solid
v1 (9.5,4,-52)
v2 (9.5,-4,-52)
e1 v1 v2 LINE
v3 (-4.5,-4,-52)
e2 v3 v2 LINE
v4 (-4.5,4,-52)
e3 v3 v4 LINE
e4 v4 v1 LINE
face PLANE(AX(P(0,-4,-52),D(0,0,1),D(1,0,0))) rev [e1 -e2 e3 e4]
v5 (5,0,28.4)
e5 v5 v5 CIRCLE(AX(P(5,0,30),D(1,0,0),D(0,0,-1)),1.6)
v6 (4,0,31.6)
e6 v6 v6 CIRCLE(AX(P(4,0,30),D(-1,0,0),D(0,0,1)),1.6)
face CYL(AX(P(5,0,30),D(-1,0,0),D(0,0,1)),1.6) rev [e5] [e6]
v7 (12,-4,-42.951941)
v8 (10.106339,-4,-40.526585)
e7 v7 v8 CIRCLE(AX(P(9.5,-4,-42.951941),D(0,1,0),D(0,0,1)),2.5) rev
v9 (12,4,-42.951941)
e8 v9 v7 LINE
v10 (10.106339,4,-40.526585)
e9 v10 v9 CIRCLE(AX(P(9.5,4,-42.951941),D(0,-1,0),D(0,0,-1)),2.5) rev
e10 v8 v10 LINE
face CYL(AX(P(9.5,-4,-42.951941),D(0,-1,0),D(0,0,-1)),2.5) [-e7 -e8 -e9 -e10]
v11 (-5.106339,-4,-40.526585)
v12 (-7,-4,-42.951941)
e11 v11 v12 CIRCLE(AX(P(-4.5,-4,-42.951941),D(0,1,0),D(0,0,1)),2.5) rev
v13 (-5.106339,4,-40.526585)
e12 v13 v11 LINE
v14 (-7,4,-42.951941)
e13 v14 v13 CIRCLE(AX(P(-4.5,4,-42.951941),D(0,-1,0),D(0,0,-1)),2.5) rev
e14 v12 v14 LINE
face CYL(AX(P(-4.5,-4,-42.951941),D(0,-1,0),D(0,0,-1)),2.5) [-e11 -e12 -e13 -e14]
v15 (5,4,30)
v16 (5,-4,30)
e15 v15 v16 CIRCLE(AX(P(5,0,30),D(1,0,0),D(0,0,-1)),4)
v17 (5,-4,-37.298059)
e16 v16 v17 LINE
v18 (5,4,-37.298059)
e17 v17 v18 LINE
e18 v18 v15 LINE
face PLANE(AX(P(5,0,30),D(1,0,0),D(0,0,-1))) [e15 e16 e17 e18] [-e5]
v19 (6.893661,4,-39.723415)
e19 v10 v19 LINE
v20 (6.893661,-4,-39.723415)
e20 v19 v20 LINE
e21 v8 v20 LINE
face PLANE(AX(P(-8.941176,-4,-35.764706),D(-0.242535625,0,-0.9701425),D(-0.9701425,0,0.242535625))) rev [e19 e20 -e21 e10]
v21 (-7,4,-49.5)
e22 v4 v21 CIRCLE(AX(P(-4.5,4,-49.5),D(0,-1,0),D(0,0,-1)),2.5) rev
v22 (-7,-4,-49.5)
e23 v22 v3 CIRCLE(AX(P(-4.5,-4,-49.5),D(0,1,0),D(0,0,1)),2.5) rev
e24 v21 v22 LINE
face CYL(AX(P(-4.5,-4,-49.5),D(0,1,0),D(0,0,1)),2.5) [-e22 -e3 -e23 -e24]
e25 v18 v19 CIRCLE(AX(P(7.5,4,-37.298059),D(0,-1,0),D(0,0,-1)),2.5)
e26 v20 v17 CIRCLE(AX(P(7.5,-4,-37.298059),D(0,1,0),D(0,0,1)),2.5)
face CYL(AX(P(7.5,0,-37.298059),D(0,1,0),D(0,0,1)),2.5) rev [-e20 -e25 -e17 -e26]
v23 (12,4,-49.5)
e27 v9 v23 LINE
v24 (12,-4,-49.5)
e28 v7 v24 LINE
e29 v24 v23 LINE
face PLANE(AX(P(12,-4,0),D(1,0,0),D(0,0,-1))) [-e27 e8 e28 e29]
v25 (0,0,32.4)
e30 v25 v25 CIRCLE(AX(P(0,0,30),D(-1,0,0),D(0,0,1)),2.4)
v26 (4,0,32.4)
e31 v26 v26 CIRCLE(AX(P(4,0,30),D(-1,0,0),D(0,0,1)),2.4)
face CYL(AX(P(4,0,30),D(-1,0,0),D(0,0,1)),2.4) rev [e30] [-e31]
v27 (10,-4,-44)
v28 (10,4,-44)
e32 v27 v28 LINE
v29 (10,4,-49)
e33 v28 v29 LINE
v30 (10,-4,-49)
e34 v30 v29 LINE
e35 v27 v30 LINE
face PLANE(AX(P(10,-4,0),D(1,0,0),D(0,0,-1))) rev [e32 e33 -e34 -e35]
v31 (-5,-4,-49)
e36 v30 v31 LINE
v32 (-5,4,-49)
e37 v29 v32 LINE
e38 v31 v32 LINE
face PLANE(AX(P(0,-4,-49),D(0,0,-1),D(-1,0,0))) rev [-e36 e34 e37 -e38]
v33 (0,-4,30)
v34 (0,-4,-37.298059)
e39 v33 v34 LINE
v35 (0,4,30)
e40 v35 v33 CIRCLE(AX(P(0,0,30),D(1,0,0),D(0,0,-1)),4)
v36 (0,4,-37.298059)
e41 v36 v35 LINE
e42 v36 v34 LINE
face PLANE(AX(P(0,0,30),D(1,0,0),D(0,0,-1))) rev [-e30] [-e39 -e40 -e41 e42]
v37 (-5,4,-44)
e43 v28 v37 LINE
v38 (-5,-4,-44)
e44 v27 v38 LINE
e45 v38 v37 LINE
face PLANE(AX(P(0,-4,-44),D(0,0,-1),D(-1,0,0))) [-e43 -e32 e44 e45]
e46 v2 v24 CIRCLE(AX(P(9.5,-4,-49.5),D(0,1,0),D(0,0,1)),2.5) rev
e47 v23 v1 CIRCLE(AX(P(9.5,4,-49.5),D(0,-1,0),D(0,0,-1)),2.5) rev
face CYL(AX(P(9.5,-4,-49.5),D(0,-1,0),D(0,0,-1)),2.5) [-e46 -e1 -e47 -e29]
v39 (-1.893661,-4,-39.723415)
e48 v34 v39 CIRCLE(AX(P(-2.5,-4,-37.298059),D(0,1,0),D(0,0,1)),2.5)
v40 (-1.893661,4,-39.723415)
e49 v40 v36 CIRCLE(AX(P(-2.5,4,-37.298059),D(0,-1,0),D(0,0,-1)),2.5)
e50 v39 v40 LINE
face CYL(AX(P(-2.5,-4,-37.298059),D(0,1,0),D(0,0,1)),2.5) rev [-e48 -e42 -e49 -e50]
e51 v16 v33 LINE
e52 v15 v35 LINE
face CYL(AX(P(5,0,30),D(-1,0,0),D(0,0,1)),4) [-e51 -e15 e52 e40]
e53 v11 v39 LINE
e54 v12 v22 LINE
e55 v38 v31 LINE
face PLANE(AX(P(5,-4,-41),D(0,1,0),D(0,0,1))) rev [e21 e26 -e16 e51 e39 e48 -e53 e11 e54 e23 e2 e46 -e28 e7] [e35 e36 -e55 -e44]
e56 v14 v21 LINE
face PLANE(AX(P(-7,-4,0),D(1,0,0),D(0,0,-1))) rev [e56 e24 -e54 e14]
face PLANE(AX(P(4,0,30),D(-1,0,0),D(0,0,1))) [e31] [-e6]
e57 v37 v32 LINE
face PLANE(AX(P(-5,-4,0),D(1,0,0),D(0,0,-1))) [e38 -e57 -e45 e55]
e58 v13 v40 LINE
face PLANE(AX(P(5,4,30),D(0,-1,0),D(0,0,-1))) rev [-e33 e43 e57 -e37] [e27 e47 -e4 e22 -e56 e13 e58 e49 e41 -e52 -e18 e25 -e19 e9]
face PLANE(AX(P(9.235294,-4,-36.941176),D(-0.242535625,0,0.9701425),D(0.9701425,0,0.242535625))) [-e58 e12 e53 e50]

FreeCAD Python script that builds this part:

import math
import FreeCAD as App
import Part
import Sketcher

V = App.Vector


def edges_at(feature, points):
    """Names of the edges that pass closest to the given points."""
    edges = feature.Shape.Edges
    near = lambda p: min(range(len(edges)), key=lambda i: edges[i].distToShape(Part.Vertex(*p))[0])
    return sorted({f"Edge{near(p) + 1}" for p in points})


def add_polygon(sketch, points):
    """Adds a closed chain of lines whose ends are joined by coincident constraints."""
    first, n = sketch.GeometryCount, len(points)
    for a, b in zip(points, points[1:] + points[:1]):
        sketch.addGeometry(Part.LineSegment(App.Vector(*a, 0), App.Vector(*b, 0)), False)
    for i in range(n):
        sketch.addConstraint(Sketcher.Constraint("Coincident", first + i, 2, first + (i + 1) % n, 1))

doc = App.newDocument("Part")
body = doc.addObject("PartDesign::Body", "Body")

# Sketch on YZ plane
sketch1 = body.newObject("Sketcher::SketchObject", "Sketch")
sketch1.AttachmentSupport = (doc.getObject("YZ_Plane"), [""])
sketch1.MapMode = "FlatFace"
sketch1.addGeometry(Part.LineSegment(V(4, -41, 0), V(4, 30, 0)), False)
sketch1.addGeometry(Part.ArcOfCircle(Part.Circle(V(0, 30, 0), V(0, 0, 1), 4), math.radians(0), math.radians(180)), False)
sketch1.addGeometry(Part.LineSegment(V(-4, 30, 0), V(-4, -41, 0)), False)
sketch1.addGeometry(Part.LineSegment(V(-4, -41, 0), V(4, -41, 0)), False)
sketch1.addGeometry(Part.Circle(V(0, 30, 0), V(0, 0, 1), 1.6), False)
sketch1.addConstraint(Sketcher.Constraint("Tangent", 0, 2, 1, 1))
sketch1.addConstraint(Sketcher.Constraint("Tangent", 1, 2, 2, 1))
sketch1.addConstraint(Sketcher.Constraint("Coincident", 2, 2, 3, 1))
sketch1.addConstraint(Sketcher.Constraint("Coincident", 3, 2, 0, 1))
sketch1.addConstraint(Sketcher.Constraint("Vertical", 0))
sketch1.addConstraint(Sketcher.Constraint("Vertical", 2))
sketch1.addConstraint(Sketcher.Constraint("Horizontal", 3))
sketch1.addConstraint(Sketcher.Constraint("Coincident", 4, 3, 1, 3))
sketch1.addConstraint(Sketcher.Constraint("PointOnObject", 1, 3, -2))
sketch1.addConstraint(Sketcher.Constraint("Radius", 1, 4.0))
sketch1.addConstraint(Sketcher.Constraint("Diameter", 4, 3.2))
sketch1.addConstraint(Sketcher.Constraint("DistanceY", 0, 1, 0, 2, 71.0))
sketch1.addConstraint(Sketcher.Constraint("DistanceY", -1, 1, 1, 3, 30.0))
pad1 = body.newObject("PartDesign::Pad", "Pad")
pad1.Profile = sketch1
pad1.Length = 5

# Sketch on XZ plane
sketch2 = body.newObject("Sketcher::SketchObject", "Sketch001")
sketch2.AttachmentSupport = (doc.getObject("XZ_Plane"), [""])
sketch2.MapMode = "FlatFace"
sketch2.AttachmentOffset = App.Placement(V(0, 0, -4), App.Rotation())
add_polygon(sketch2, [(12, -41), (12, -52), (-7, -52), (-7, -41), (0, -39.2), (0, -41), (5, -41), (5, -39.2)])  # lines 0-7
add_polygon(sketch2, [(10, -44), (-5, -44), (-5, -49), (10, -49)])  # lines 8-11
sketch2.addConstraint(Sketcher.Constraint("Vertical", 0))
sketch2.addConstraint(Sketcher.Constraint("Horizontal", 1))
sketch2.addConstraint(Sketcher.Constraint("Vertical", 2))
sketch2.addConstraint(Sketcher.Constraint("Vertical", 4))
sketch2.addConstraint(Sketcher.Constraint("Horizontal", 5))
sketch2.addConstraint(Sketcher.Constraint("Vertical", 6))
sketch2.addConstraint(Sketcher.Constraint("Horizontal", 8))
sketch2.addConstraint(Sketcher.Constraint("Vertical", 9))
sketch2.addConstraint(Sketcher.Constraint("Horizontal", 10))
sketch2.addConstraint(Sketcher.Constraint("Vertical", 11))
sketch2.addConstraint(Sketcher.Constraint("PointOnObject", 3, 2, -2))
sketch2.addConstraint(Sketcher.Constraint("Horizontal", 2, 2, 4, 2))
sketch2.addConstraint(Sketcher.Constraint("Horizontal", 3, 2, 6, 2))
sketch2.addConstraint(Sketcher.Constraint("Horizontal", 5, 2, 7, 2))
sketch2.addConstraint(Sketcher.Constraint("Equal", 5, 9))
sketch2.addConstraint(Sketcher.Constraint("Equal", 3, 7))
sketch2.addConstraint(Sketcher.Constraint("DistanceX", 1, 2, 1, 1, 19.0))
sketch2.addConstraint(Sketcher.Constraint("DistanceX", 5, 1, 5, 2, 5.0))
sketch2.addConstraint(Sketcher.Constraint("DistanceX", 8, 2, 8, 1, 15.0))
sketch2.addConstraint(Sketcher.Constraint("DistanceY", 0, 2, 0, 1, 11.0))
sketch2.addConstraint(Sketcher.Constraint("DistanceY", 0, 2, -1, 1, 52.0))
sketch2.addConstraint(Sketcher.Constraint("DistanceX", 8, 2, -1, 1, 5.0))
sketch2.addConstraint(Sketcher.Constraint("DistanceY", 8, 2, -1, 1, 44.0))
sketch2.addConstraint(Sketcher.Constraint("DistanceY", 4, 2, 4, 1, 1.75))
pad2 = body.newObject("PartDesign::Pad", "Pad001")
pad2.Profile = sketch2
pad2.Length = 8

# Sketch on YZ plane
sketch3 = body.newObject("Sketcher::SketchObject", "Sketch002")
sketch3.AttachmentSupport = (doc.getObject("YZ_Plane"), [""])
sketch3.MapMode = "FlatFace"
sketch3.addGeometry(Part.Circle(V(0, 30, 0), V(0, 0, 1), 2.4), False)
sketch3.addConstraint(Sketcher.Constraint("PointOnObject", 0, 3, -2))
sketch3.addConstraint(Sketcher.Constraint("Diameter", 0, 4.8))
sketch3.addConstraint(Sketcher.Constraint("DistanceY", -1, 1, 0, 3, 30.0))
pocket1 = body.newObject("PartDesign::Pocket", "Pocket")
pocket1.Profile = sketch3
pocket1.Length = 4
pocket1.Reversed = True
doc.recompute()

fillet = body.newObject("PartDesign::Fillet", "Fillet")
fillet.Base = (pocket1, edges_at(pocket1, [
    (0, 0, -39.25),
    (-7, 0, -41),
    (-7, 0, -52),
    (12, 0, -52),
    (12, 0, -41),
    (5, 0, -39.25),
]))
fillet.Radius = 2.5

doc.recompute()
